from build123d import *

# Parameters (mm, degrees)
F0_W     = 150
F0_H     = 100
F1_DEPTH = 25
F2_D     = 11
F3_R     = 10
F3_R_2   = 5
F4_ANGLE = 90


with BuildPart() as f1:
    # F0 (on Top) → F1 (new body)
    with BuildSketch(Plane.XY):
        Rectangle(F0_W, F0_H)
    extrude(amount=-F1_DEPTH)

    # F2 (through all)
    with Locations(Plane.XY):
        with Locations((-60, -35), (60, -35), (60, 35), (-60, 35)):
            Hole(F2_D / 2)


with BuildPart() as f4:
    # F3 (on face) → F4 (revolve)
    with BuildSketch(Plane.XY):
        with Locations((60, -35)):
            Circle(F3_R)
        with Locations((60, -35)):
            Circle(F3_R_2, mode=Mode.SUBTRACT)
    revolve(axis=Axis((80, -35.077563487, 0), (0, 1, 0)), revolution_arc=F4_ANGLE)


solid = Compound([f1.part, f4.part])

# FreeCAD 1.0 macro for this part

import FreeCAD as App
import Part
import Sketcher

V = App.Vector
Q = App.Units.Quantity

doc = App.newDocument("Part")
body = doc.addObject("PartDesign::Body", "Body")

# Sketch on XY plane
sketch1 = body.newObject("Sketcher::SketchObject", "Sketch")
sketch1.AttachmentSupport = (doc.getObject("XY_Plane"), [""])
sketch1.MapMode = "FlatFace"
sketch1.addGeometry([
    Part.LineSegment(V(-75, 50, 0), V(-75, -50, 0)),
    Part.LineSegment(V(-75, -50, 0), V(75, -50, 0)),
    Part.LineSegment(V(75, -50, 0), V(75, 50, 0)),
    Part.LineSegment(V(75, 50, 0), V(-75, 50, 0)),
], False)
sketch1.addConstraint([
    Sketcher.Constraint("Coincident", 0, 2, 1, 1),
    Sketcher.Constraint("Coincident", 1, 2, 2, 1),
    Sketcher.Constraint("Coincident", 2, 2, 3, 1),
    Sketcher.Constraint("Coincident", 3, 2, 0, 1),
    Sketcher.Constraint("Vertical", 0),
    Sketcher.Constraint("Horizontal", 1),
    Sketcher.Constraint("Vertical", 2),
    Sketcher.Constraint("Horizontal", 3),
    Sketcher.Constraint("Symmetric", 0, 2, 2, 2, -1, 1),
    Sketcher.Constraint("DistanceX", 1, 1, 1, 2, Q("150 mm")),
    Sketcher.Constraint("DistanceY", 0, 2, 0, 1, Q("100 mm")),
])
pad1 = body.newObject("PartDesign::Pad", "Pad")
pad1.Profile = sketch1
pad1.Length = 25
pad1.Reversed = True

# Sketch on XY plane
sketch2 = body.newObject("Sketcher::SketchObject", "Sketch001")
sketch2.AttachmentSupport = (doc.getObject("XY_Plane"), [""])
sketch2.MapMode = "FlatFace"
sketch2.addGeometry([
    Part.Circle(V(-60, -35, 0), V(0, 0, 1), 6),
    Part.Circle(V(60, -35, 0), V(0, 0, 1), 6),
    Part.Circle(V(60, 35, 0), V(0, 0, 1), 6),
    Part.Circle(V(-60, 35, 0), V(0, 0, 1), 6),
], False)
sketch2.addConstraint([
    Sketcher.Constraint("Equal", 0, 1),
    Sketcher.Constraint("Equal", 1, 2),
    Sketcher.Constraint("Equal", 2, 3),
    Sketcher.Constraint("Symmetric", 0, 3, 2, 3, -1, 1),
    Sketcher.Constraint("Symmetric", 1, 3, 3, 3, -1, 1),
    Sketcher.Constraint("Symmetric", 0, 3, 1, 3, -2),
    Sketcher.Constraint("Diameter", 0, Q("11 mm")),
    Sketcher.Constraint("DistanceX", 0, 3, -1, 1, Q("60 mm")),
    Sketcher.Constraint("DistanceY", 0, 3, -1, 1, Q("35 mm")),
])
doc.recompute()
hole = body.newObject("PartDesign::Hole", "Hole")
hole.Profile = sketch2
hole.ThreadType = "None"
hole.Diameter = 11
hole.DepthType = "ThroughAll"
body2 = doc.addObject("PartDesign::Body", "Body001")

# Sketch on XY plane
sketch3 = body2.newObject("Sketcher::SketchObject", "Sketch002")
sketch3.AttachmentSupport = (doc.getObject("XY_Plane001"), [""])
sketch3.MapMode = "FlatFace"
sketch3.addGeometry([
    Part.Circle(V(60, -35, 0), V(0, 0, 1), 10),
    Part.Circle(V(60, -35, 0), V(0, 0, 1), 5),
], False)
sketch3.addGeometry(Part.LineSegment(V(80, -35, 0), V(80, -25, 0)), True)  # axis
sketch3.addConstraint([
    Sketcher.Constraint("Vertical", 2),
    Sketcher.Constraint("Coincident", 1, 3, 0, 3),
    Sketcher.Constraint("Horizontal", 1, 3, 2, 1),
    Sketcher.Constraint("Diameter", 0, Q("20 mm")),
    Sketcher.Constraint("Diameter", 1, Q("10 mm")),
    Sketcher.Constraint("DistanceY", 2, 1, 2, 2, Q("10 mm")),
    Sketcher.Constraint("DistanceX", -1, 1, 0, 3, Q("60 mm")),
    Sketcher.Constraint("DistanceY", 0, 3, -1, 1, Q("35 mm")),
    Sketcher.Constraint("DistanceX", -1, 1, 2, 1, Q("80 mm")),
])
revolution = body2.newObject("PartDesign::Revolution", "Revolution")
revolution.Profile = sketch3
revolution.ReferenceAxis = (sketch3, ["Axis0"])
revolution.Angle = 90

doc.recompute()
